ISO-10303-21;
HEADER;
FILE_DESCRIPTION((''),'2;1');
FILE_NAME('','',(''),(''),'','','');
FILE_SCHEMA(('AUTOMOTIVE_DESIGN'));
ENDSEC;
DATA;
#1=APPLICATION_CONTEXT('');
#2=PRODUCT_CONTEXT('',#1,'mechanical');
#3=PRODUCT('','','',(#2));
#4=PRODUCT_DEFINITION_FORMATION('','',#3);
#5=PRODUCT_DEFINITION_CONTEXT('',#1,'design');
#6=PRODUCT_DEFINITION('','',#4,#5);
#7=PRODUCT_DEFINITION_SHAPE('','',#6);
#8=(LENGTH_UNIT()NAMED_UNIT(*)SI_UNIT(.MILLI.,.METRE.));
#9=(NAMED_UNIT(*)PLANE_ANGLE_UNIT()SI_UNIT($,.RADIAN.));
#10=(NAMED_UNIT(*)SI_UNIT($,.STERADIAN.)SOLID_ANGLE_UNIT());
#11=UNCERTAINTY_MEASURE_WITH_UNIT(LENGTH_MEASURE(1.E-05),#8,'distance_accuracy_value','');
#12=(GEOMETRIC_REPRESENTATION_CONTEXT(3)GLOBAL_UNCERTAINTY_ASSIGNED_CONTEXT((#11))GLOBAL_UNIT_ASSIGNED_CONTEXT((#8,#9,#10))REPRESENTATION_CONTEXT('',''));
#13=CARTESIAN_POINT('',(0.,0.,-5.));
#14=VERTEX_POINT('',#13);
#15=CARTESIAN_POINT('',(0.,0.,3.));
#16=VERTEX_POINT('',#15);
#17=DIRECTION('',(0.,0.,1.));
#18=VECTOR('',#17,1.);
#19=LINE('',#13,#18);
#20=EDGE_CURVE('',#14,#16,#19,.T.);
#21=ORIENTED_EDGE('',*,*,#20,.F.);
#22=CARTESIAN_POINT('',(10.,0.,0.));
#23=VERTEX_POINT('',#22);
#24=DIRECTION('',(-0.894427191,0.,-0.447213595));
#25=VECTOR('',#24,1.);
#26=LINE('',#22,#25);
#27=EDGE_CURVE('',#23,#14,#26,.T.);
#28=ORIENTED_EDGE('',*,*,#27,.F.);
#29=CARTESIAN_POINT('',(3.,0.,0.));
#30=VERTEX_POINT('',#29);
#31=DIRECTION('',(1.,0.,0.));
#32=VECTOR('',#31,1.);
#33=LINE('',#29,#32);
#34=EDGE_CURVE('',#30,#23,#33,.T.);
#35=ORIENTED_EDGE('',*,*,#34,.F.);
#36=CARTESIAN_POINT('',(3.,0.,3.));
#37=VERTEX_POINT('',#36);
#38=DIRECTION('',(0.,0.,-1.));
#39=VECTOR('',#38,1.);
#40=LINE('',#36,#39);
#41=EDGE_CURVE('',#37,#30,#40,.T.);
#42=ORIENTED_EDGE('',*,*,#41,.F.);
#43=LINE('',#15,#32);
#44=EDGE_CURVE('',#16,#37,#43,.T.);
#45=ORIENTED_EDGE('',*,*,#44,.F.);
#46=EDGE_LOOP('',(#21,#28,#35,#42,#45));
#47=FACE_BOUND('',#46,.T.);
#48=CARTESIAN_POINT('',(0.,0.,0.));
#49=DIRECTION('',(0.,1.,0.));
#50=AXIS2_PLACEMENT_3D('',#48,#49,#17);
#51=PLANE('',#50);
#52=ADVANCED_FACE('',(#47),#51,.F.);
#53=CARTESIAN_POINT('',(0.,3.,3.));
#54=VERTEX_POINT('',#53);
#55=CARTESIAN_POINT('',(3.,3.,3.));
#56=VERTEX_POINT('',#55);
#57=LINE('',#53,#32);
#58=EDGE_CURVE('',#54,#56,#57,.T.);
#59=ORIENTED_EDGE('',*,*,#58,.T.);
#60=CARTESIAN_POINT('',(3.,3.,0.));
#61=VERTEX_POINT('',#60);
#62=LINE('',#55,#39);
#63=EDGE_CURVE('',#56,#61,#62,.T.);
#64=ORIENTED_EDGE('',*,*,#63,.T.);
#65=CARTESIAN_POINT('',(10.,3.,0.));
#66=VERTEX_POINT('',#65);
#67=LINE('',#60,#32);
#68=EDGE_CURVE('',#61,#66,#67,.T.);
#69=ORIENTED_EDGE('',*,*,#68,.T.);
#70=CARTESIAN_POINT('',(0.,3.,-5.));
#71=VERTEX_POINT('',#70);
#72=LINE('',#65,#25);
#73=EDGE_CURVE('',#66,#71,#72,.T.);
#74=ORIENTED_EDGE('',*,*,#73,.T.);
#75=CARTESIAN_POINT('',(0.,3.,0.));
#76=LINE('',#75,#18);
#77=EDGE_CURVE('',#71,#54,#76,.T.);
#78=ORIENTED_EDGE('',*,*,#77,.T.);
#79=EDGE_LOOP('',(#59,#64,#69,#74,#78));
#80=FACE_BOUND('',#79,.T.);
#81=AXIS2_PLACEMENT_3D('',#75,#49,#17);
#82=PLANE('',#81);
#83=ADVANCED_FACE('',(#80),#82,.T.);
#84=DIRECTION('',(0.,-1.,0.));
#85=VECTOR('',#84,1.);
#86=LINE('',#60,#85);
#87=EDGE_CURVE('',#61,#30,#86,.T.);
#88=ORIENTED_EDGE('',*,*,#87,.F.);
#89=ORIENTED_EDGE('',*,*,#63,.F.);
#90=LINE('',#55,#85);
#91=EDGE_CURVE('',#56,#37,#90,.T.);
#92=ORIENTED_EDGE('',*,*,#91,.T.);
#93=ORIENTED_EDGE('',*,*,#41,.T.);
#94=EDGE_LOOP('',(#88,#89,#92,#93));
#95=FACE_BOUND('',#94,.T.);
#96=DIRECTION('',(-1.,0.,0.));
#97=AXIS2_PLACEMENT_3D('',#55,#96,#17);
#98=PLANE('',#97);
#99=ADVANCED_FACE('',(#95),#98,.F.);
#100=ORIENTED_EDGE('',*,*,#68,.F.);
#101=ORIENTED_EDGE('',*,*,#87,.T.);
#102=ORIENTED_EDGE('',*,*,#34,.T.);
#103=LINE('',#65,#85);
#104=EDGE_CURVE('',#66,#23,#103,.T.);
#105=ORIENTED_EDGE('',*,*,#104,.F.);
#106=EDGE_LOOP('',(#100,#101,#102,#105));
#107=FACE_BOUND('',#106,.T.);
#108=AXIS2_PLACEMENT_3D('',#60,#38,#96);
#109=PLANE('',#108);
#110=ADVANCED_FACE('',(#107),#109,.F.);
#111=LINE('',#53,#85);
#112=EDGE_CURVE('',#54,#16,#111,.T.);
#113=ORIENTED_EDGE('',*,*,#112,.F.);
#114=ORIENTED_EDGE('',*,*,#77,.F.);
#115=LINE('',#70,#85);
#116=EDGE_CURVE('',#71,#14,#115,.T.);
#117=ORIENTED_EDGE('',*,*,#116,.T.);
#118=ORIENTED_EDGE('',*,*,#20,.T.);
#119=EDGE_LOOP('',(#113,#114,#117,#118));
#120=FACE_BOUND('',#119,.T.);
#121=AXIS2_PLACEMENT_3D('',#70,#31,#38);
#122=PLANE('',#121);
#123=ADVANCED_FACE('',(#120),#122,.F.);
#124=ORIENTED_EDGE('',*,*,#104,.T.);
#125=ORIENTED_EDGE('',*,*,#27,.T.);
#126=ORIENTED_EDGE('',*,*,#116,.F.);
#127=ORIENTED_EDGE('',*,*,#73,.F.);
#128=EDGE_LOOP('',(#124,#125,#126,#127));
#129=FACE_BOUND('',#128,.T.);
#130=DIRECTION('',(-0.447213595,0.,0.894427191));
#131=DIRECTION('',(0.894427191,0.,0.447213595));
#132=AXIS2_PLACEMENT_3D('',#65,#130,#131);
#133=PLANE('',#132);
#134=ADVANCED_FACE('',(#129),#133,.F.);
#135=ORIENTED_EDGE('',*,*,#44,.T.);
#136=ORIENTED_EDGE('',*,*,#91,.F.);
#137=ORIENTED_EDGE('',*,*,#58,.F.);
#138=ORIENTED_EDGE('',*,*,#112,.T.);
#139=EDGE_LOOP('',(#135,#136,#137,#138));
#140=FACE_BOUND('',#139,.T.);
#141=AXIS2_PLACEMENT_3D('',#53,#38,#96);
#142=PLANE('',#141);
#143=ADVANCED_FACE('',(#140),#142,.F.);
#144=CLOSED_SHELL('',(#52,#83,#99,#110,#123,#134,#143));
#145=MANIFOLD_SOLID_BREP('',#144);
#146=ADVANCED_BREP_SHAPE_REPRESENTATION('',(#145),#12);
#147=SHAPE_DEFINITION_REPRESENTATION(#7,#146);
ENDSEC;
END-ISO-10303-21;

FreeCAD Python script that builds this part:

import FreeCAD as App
import Part
import Sketcher
from FreeCAD import Vector


def add_polygon(sketch, points):
    """Adds a closed chain of lines whose ends are joined by coincident constraints."""
    first, n = sketch.GeometryCount, len(points)
    for a, b in zip(points, points[1:] + points[:1]):
        sketch.addGeometry(Part.LineSegment(App.Vector(*a, 0), App.Vector(*b, 0)), False)
    for i in range(n):
        sketch.addConstraint(Sketcher.Constraint("Coincident", first + i, 2, first + (i + 1) % n, 1))

doc = App.newDocument("Part")
body = doc.addObject("PartDesign::Body", "Body")

# Sketch on XZ plane
sketch1 = doc.addObject("Sketcher::SketchObject", "Sketch")
body.addObject(sketch1)
sketch1.AttachmentSupport = (doc.XZ_Plane, [""])
sketch1.MapMode = "FlatFace"
add_polygon(sketch1, [(3, 0), (10, 0), (0, -5), (0, 3), (3, 3)])  # lines 0-4
sketch1.addConstraint([
    Sketcher.Constraint("Horizontal", 0),
    Sketcher.Constraint("Vertical", 2),
    Sketcher.Constraint("Horizontal", 3),
    Sketcher.Constraint("Vertical", 4),
    Sketcher.Constraint("PointOnObject", 0, 2, -1),
    Sketcher.Constraint("PointOnObject", 1, 2, -2),
    Sketcher.Constraint("Equal", 3, 4),
    Sketcher.Constraint("DistanceX", 0, 1, 0, 2, 7.0),
    Sketcher.Constraint("DistanceX", 3, 1, 3, 2, 3.0),
    Sketcher.Constraint("DistanceY", 2, 1, 2, 2, 8.0),
])
pad1 = doc.addObject("PartDesign::Pad", "Pad")
body.addObject(pad1)
pad1.Profile = sketch1
pad1.Length = 3
pad1.Reversed = True

doc.recompute()
